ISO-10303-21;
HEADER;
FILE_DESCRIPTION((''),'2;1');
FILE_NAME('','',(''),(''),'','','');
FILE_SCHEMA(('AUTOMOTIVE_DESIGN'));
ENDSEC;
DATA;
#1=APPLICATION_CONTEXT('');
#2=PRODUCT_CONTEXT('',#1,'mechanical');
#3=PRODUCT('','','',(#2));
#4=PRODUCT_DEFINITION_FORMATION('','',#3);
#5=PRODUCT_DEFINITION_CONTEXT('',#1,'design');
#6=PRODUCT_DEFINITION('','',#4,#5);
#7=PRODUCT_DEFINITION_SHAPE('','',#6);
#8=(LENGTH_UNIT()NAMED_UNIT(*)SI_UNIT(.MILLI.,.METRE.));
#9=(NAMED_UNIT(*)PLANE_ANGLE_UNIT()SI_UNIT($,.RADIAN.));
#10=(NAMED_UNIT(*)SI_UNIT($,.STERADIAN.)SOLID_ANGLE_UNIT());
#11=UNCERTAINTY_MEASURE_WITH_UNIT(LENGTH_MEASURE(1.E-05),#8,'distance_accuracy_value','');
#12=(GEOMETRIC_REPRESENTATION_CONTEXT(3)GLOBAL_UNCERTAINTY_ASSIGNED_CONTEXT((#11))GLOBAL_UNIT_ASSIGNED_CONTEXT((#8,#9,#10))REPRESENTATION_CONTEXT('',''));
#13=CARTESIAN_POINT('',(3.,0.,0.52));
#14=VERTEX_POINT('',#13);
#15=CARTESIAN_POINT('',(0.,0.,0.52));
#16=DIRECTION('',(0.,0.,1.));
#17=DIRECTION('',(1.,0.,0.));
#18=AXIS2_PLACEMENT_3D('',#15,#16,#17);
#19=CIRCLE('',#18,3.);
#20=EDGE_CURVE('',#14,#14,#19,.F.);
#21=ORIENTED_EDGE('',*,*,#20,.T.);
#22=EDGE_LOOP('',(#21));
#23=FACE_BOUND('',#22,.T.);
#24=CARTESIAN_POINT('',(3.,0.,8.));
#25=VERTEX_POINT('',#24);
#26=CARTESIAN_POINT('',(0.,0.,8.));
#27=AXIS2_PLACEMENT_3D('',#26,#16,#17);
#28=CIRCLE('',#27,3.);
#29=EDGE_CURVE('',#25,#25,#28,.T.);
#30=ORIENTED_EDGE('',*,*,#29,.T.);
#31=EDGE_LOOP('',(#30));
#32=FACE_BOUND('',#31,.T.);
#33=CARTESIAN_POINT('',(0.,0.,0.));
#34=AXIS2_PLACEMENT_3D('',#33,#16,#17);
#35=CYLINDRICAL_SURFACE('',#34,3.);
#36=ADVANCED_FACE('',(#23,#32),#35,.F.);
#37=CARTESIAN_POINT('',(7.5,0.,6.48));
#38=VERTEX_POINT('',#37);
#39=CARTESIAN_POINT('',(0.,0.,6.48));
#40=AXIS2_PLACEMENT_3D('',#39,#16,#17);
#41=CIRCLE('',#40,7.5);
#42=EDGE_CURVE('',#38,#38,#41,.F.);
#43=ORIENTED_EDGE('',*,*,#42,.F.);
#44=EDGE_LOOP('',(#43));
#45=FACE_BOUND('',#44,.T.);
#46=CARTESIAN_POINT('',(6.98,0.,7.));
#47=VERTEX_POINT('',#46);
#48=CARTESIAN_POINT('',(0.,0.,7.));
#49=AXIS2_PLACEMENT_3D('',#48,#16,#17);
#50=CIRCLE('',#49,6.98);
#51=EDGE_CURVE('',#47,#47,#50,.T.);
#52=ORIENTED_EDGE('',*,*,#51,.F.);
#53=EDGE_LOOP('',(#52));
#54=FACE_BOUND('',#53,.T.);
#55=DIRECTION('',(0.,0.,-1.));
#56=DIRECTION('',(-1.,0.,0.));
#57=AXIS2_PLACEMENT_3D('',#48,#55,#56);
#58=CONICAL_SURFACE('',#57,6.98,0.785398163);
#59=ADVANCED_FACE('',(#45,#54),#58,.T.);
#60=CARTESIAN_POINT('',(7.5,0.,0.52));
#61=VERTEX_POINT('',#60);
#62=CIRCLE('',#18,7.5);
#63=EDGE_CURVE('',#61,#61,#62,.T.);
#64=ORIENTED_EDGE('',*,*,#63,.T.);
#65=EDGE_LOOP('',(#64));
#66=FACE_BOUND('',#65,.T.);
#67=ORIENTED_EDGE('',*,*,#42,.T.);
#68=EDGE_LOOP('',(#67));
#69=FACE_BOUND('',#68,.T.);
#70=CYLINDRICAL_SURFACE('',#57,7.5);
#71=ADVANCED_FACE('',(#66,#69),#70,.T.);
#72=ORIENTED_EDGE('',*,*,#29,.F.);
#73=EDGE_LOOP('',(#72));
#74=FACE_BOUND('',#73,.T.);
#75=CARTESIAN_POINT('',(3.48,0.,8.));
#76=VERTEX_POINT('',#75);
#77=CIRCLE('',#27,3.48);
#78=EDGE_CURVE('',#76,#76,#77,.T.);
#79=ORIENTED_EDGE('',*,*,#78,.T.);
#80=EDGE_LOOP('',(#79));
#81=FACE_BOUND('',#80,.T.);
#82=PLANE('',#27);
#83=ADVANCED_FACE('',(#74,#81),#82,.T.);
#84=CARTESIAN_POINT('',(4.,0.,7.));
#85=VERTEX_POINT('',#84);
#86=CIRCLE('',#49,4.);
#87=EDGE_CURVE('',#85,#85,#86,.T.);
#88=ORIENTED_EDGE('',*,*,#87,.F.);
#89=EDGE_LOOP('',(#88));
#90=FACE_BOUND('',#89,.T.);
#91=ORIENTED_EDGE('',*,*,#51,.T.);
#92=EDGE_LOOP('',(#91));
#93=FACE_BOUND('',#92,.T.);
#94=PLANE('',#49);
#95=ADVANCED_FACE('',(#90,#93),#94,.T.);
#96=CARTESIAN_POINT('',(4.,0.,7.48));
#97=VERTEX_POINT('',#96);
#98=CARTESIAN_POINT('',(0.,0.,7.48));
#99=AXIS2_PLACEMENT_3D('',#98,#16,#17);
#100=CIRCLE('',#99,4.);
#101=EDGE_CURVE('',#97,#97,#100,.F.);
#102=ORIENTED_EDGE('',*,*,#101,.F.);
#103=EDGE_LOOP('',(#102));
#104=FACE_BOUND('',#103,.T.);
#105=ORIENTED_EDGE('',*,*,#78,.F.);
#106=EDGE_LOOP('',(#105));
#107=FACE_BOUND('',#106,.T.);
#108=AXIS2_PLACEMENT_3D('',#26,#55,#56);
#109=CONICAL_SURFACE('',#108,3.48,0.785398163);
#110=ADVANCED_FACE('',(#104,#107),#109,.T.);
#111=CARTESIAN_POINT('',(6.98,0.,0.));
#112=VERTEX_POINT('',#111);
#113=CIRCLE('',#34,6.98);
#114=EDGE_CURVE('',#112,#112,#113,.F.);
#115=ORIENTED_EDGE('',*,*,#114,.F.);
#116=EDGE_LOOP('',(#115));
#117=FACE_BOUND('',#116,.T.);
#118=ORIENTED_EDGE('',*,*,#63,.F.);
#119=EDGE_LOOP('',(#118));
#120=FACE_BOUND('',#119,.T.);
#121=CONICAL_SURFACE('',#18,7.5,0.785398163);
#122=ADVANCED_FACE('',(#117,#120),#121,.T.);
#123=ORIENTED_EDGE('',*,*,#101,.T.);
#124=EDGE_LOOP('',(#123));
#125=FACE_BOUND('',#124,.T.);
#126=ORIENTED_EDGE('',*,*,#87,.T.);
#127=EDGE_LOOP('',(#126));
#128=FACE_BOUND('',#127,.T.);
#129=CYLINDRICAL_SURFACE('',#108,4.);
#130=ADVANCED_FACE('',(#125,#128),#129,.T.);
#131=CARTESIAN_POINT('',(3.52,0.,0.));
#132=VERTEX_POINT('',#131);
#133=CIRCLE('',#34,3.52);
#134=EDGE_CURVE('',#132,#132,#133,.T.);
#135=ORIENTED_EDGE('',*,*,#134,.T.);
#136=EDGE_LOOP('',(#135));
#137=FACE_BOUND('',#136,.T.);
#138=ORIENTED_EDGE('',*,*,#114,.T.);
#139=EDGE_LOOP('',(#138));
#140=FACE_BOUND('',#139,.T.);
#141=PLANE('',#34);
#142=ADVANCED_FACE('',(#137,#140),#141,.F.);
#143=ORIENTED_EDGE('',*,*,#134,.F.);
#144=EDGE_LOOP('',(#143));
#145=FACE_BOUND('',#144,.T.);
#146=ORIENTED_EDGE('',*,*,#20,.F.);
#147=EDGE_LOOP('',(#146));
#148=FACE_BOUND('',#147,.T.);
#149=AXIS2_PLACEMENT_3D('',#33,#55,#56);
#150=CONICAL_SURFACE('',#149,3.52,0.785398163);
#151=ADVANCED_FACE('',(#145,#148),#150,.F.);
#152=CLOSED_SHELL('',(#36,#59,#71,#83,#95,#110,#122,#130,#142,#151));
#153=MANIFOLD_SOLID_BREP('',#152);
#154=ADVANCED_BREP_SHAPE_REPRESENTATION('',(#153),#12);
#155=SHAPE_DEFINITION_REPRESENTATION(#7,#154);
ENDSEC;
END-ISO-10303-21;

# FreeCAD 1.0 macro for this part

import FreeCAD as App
import Part
import Sketcher


def edges_at(feature, points):
    """Names of the edges that pass closest to the given points."""
    edges = feature.Shape.Edges
    near = lambda p: min(range(len(edges)), key=lambda i: edges[i].distToShape(Part.Vertex(*p))[0])
    return sorted({f"Edge{near(p) + 1}" for p in points})

doc = App.newDocument("Part")
body = doc.addObject("PartDesign::Body", "Body")

# Sketch on XY plane
sketch1 = body.newObject("Sketcher::SketchObject", "Sketch")
sketch1.AttachmentSupport = (doc.getObject("XY_Plane"), [""])
sketch1.MapMode = "FlatFace"
sketch1.addGeometry(Part.Circle(App.Vector(0, 0, 0), App.Vector(0, 0, 1), 7.5), False)
sketch1.addConstraint([
    Sketcher.Constraint("Coincident", 0, 3, -1, 1),
    Sketcher.Constraint("Diameter", 0, 15.0),
])
pad1 = body.newObject("PartDesign::Pad", "Pad")
pad1.Profile = sketch1
pad1.Length = 7

# Sketch on XY plane
sketch2 = body.newObject("Sketcher::SketchObject", "Sketch001")
sketch2.AttachmentSupport = (doc.getObject("XY_Plane"), [""])
sketch2.MapMode = "FlatFace"
sketch2.AttachmentOffset = App.Placement(App.Vector(0, 0, 7), App.Rotation())
sketch2.addGeometry(Part.Circle(App.Vector(0, 0, 0), App.Vector(0, 0, 1), 4), False)
sketch2.addConstraint([
    Sketcher.Constraint("Coincident", 0, 3, -1, 1),
    Sketcher.Constraint("Diameter", 0, 8.0),
])
pad2 = body.newObject("PartDesign::Pad", "Pad001")
pad2.Profile = sketch2
pad2.Length = 1

# Sketch on XY plane
sketch3 = body.newObject("Sketcher::SketchObject", "Sketch002")
sketch3.AttachmentSupport = (doc.getObject("XY_Plane"), [""])
sketch3.MapMode = "FlatFace"
sketch3.AttachmentOffset = App.Placement(App.Vector(0, 0, 8), App.Rotation())
sketch3.addGeometry(Part.Circle(App.Vector(0, 0, 0), App.Vector(0, 0, 1), 3), False)
sketch3.addConstraint([
    Sketcher.Constraint("Coincident", 0, 3, -1, 1),
    Sketcher.Constraint("Diameter", 0, 6.0),
])
pocket1 = body.newObject("PartDesign::Pocket", "Pocket")
pocket1.Profile = sketch3
pocket1.Type = "ThroughAll"
doc.recompute()

chamfer = body.newObject("PartDesign::Chamfer", "Chamfer")
chamfer.Base = (pocket1, edges_at(pocket1, [
    (-3, 0, 0),
    (-7.5, 0, 0),
    (-7.5, 0, 7),
    (-4, 0, 8),
]))
chamfer.Size = 0.52

doc.recompute()
